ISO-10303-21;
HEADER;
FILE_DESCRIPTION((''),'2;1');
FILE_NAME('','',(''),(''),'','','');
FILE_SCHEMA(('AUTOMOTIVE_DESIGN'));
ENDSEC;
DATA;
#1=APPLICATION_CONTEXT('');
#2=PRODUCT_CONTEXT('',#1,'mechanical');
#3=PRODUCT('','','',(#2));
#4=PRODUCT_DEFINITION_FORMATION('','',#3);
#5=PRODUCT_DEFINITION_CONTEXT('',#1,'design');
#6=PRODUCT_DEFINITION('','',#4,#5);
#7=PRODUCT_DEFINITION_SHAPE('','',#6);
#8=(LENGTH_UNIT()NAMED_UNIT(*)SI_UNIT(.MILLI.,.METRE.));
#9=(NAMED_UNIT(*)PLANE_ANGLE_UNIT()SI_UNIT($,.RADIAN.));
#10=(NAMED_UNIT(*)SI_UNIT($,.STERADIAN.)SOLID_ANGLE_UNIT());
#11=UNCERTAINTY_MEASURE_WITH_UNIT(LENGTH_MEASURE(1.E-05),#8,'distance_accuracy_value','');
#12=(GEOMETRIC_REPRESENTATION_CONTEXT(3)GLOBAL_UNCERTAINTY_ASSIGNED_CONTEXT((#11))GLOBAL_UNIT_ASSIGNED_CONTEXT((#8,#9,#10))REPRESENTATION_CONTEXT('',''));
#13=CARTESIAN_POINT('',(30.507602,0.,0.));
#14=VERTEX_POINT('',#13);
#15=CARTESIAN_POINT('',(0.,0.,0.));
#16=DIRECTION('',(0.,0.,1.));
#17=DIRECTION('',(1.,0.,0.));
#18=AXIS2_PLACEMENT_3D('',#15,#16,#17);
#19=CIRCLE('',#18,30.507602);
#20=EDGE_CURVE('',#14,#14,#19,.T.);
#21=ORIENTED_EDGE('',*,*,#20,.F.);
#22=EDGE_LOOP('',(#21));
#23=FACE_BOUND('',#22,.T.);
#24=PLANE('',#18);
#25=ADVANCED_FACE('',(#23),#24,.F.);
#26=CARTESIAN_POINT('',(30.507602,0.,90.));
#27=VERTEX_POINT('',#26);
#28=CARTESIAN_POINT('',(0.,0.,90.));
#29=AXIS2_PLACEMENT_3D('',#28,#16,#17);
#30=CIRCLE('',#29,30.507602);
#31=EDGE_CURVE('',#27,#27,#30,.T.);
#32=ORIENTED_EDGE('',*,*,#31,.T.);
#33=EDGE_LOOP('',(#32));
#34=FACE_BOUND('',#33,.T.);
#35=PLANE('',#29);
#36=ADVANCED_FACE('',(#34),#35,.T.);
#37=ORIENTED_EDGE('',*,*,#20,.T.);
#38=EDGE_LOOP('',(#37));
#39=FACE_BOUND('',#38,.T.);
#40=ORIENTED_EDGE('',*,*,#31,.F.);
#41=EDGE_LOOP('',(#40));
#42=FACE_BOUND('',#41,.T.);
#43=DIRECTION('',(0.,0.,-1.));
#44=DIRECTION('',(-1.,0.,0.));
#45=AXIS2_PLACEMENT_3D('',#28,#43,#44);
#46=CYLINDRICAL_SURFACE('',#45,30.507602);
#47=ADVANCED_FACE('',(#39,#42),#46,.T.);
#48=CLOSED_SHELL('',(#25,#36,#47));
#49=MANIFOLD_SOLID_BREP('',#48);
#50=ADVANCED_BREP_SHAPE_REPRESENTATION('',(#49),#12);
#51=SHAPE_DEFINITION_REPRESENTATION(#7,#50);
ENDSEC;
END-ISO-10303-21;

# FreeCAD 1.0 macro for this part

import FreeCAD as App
import Part
import Sketcher

doc = App.newDocument("Part")
body = doc.addObject("PartDesign::Body", "Body")

sketch1 = doc.addObject("Sketcher::SketchObject", "Sketch")
body.addObject(sketch1)
sketch1.AttachmentSupport = (doc.XY_Plane, [""])
sketch1.MapMode = "FlatFace"
sketch1.addGeometry(Part.Circle(App.Vector(0, 0, 0), App.Vector(0, 0, 1), 31), False)
sketch1.addConstraint([
    Sketcher.Constraint("Coincident", 0, 3, -1, 1),
    Sketcher.Constraint("Diameter", 0, 61.015205),
])
pad1 = doc.addObject("PartDesign::Pad", "Pad")
body.addObject(pad1)
pad1.Profile = sketch1
pad1.Length = 90

doc.recompute()
